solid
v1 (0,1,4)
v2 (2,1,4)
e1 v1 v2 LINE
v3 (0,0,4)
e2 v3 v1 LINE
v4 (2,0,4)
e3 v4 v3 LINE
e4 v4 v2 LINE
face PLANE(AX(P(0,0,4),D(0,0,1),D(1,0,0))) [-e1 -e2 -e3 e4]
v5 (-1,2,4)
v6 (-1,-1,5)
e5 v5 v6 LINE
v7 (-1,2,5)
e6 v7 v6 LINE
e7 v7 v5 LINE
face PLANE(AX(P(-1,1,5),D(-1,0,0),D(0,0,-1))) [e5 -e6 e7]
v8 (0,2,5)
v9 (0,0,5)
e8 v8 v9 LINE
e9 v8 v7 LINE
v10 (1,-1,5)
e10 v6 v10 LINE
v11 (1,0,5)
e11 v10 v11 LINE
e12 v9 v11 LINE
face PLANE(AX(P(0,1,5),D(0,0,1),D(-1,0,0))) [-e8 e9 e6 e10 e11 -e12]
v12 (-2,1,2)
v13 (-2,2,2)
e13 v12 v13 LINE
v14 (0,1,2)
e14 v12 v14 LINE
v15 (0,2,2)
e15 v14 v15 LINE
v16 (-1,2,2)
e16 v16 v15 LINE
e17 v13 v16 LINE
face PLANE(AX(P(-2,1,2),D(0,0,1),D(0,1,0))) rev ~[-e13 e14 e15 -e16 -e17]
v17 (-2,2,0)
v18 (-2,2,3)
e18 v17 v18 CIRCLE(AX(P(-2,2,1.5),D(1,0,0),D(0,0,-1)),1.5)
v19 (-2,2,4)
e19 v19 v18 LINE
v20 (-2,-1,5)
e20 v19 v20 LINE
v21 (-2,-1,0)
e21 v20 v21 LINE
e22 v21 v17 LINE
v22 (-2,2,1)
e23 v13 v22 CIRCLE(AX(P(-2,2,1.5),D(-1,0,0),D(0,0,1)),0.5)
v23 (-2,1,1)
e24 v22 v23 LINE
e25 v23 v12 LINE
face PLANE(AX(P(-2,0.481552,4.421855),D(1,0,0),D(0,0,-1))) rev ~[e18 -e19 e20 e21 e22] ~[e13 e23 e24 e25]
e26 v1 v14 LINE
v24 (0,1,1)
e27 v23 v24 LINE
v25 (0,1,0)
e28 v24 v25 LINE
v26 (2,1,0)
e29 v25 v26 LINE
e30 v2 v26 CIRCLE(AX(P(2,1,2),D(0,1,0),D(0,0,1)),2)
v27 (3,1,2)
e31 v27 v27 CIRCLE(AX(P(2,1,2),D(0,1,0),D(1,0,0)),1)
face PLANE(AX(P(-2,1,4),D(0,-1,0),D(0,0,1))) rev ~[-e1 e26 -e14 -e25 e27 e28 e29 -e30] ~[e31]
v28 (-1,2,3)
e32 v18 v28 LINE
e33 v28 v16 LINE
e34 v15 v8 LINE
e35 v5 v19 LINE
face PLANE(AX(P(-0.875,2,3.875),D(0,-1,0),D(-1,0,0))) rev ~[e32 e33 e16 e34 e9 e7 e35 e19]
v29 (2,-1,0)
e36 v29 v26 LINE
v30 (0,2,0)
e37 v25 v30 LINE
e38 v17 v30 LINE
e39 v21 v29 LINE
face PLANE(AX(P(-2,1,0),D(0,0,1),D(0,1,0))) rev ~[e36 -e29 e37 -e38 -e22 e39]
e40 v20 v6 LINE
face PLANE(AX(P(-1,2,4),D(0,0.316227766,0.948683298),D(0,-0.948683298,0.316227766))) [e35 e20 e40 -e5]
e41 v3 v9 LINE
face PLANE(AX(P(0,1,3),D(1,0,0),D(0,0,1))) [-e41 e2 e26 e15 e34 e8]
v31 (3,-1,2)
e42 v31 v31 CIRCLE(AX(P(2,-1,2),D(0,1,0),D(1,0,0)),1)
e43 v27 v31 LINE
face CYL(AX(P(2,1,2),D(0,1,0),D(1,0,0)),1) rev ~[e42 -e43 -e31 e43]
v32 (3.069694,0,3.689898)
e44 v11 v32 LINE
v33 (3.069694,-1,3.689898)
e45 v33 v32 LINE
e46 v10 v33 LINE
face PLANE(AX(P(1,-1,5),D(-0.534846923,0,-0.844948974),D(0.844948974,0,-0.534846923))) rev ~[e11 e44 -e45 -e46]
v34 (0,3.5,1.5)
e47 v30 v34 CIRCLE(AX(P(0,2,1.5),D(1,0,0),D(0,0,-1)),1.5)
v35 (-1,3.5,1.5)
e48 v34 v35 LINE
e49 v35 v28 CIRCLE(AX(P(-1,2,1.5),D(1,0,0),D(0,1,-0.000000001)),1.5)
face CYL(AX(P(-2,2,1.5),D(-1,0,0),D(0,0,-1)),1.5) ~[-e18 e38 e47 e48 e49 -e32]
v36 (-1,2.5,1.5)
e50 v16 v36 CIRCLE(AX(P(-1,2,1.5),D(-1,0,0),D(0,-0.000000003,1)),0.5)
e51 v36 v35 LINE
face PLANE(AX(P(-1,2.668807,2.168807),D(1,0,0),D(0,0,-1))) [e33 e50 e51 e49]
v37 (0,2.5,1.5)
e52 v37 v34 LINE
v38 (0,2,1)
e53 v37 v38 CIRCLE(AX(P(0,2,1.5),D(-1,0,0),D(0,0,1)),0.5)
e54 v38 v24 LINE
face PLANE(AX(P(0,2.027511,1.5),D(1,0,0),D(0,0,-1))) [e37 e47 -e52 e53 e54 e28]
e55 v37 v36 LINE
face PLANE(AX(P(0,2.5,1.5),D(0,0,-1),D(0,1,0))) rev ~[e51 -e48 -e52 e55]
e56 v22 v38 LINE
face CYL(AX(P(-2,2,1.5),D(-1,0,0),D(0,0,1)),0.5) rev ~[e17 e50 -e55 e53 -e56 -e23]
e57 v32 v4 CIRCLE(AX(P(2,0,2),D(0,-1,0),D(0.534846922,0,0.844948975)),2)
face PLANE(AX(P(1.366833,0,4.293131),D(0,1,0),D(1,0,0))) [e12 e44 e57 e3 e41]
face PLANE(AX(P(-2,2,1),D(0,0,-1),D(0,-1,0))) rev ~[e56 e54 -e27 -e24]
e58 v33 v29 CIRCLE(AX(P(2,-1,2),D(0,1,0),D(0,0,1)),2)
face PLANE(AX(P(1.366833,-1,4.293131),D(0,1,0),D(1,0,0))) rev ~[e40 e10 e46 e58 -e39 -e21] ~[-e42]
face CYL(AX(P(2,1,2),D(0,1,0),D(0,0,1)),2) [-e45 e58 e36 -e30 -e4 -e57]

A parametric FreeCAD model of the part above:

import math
import FreeCAD as App
import Part
import Sketcher
Q = App.Units.Quantity


def add_polygon(sketch, points):
    """Adds a closed chain of lines whose ends are joined by coincident constraints."""
    first, n = sketch.GeometryCount, len(points)
    for a, b in zip(points, points[1:] + points[:1]):
        sketch.addGeometry(Part.LineSegment(App.Vector(*a, 0), App.Vector(*b, 0)), False)
    for i in range(n):
        sketch.addConstraint(Sketcher.Constraint("Coincident", first + i, 2, first + (i + 1) % n, 1))

doc = App.newDocument("Part")
body = doc.addObject("PartDesign::Body", "Body")

# Sketch on XY plane
sketch1 = doc.addObject("Sketcher::SketchObject", "Sketch")
body.addObject(sketch1)
sketch1.AttachmentSupport = (doc.XY_Plane, [""])
sketch1.MapMode = "FlatFace"
add_polygon(sketch1, [(-2, 1), (-2, -1), (2, -1), (2, 1)])  # lines 0-3
sketch1.addConstraint([
    Sketcher.Constraint("Vertical", 0),
    Sketcher.Constraint("Horizontal", 1),
    Sketcher.Constraint("Vertical", 2),
    Sketcher.Constraint("Horizontal", 3),
    Sketcher.Constraint("Symmetric", 0, 2, 2, 2, -1, 1),
    Sketcher.Constraint("DistanceX", 1, 1, 1, 2, Q("4 mm")),
    Sketcher.Constraint("DistanceY", 0, 2, 0, 1, Q("2 mm")),
])
pad1 = doc.addObject("PartDesign::Pad", "Pad")
body.addObject(pad1)
pad1.Profile = sketch1
pad1.Length = 4

# Sketch on XZ plane
sketch2 = doc.addObject("Sketcher::SketchObject", "Sketch001")
body.addObject(sketch2)
sketch2.AttachmentSupport = (doc.XZ_Plane, [""])
sketch2.MapMode = "FlatFace"
sketch2.AttachmentOffset = App.Placement(App.Vector(0, 0, -1), App.Rotation())
sketch2.addGeometry([
    Part.LineSegment(App.Vector(2, 0, 0), App.Vector(2, 4, 0)),
    Part.ArcOfCircle(Part.Circle(App.Vector(2, 2, 0), App.Vector(0, 0, 1), 2), math.radians(-90), math.radians(90)),
], False)
sketch2.addConstraint([
    Sketcher.Constraint("Coincident", 0, 1, 1, 1),
    Sketcher.Constraint("Coincident", 1, 2, 0, 2),
    Sketcher.Constraint("Vertical", 0),
    Sketcher.Constraint("PointOnObject", 0, 1, -1),
    Sketcher.Constraint("Vertical", 1, 3, 0, 1),
    Sketcher.Constraint("Radius", 1, Q("2 mm")),
    Sketcher.Constraint("DistanceX", -1, 1, 1, 3, Q("2 mm")),
])
pad2 = doc.addObject("PartDesign::Pad", "Pad001")
body.addObject(pad2)
pad2.Profile = sketch2
pad2.Length = 2

# Sketch on XZ plane
sketch3 = doc.addObject("Sketcher::SketchObject", "Sketch002")
body.addObject(sketch3)
sketch3.AttachmentSupport = (doc.XZ_Plane, [""])
sketch3.MapMode = "FlatFace"
sketch3.AttachmentOffset = App.Placement(App.Vector(0, 0, -1), App.Rotation())
sketch3.addGeometry(Part.Circle(App.Vector(2, 2, 0), App.Vector(0, 0, 1), 1), False)
sketch3.addConstraint([
    Sketcher.Constraint("Diameter", 0, Q("2 mm")),
    Sketcher.Constraint("DistanceX", -1, 1, 0, 3, Q("2 mm")),
    Sketcher.Constraint("DistanceY", -1, 1, 0, 3, Q("2 mm")),
])
pocket1 = doc.addObject("PartDesign::Pocket", "Pocket")
body.addObject(pocket1)
pocket1.Profile = sketch3
pocket1.Type = "ThroughAll"
pocket1.Reversed = True

# Sketch on YZ plane
sketch4 = doc.addObject("Sketcher::SketchObject", "Sketch003")
body.addObject(sketch4)
sketch4.AttachmentSupport = (doc.YZ_Plane, [""])
sketch4.MapMode = "FlatFace"
sketch4.AttachmentOffset = App.Placement(App.Vector(0, 0, -2), App.Rotation())
sketch4.addGeometry([
    Part.LineSegment(App.Vector(2, 0, 0), App.Vector(1, 0, 0)),  # 0
    Part.LineSegment(App.Vector(1, 0, 0), App.Vector(1, 1, 0)),  # 1
    Part.LineSegment(App.Vector(1, 1, 0), App.Vector(2, 1, 0)),  # 2
    Part.ArcOfCircle(Part.Circle(App.Vector(2, 1.5, 0), App.Vector(0, 0, 1), 0.5), math.radians(-90), math.radians(90)),  # 3
    Part.LineSegment(App.Vector(2, 2, 0), App.Vector(1, 2, 0)),  # 4
    Part.LineSegment(App.Vector(1, 2, 0), App.Vector(1, 3, 0)),  # 5
    Part.LineSegment(App.Vector(1, 3, 0), App.Vector(2, 3, 0)),  # 6
    Part.ArcOfCircle(Part.Circle(App.Vector(2, 1.5, 0), App.Vector(0, 0, 1), 1.5), math.radians(-90), math.radians(90)),  # 7
], False)
sketch4.addConstraint([
    Sketcher.Constraint("Coincident", 0, 2, 1, 1),
    Sketcher.Constraint("Coincident", 1, 2, 2, 1),
    Sketcher.Constraint("Tangent", 2, 2, 3, 1),
    Sketcher.Constraint("Tangent", 3, 2, 4, 1),
    Sketcher.Constraint("Coincident", 4, 2, 5, 1),
    Sketcher.Constraint("Coincident", 5, 2, 6, 1),
    Sketcher.Constraint("Tangent", 6, 2, 7, 2),
    Sketcher.Constraint("Tangent", 7, 1, 0, 1),
    Sketcher.Constraint("Horizontal", 0),
    Sketcher.Constraint("Vertical", 1),
    Sketcher.Constraint("Horizontal", 2),
    Sketcher.Constraint("Horizontal", 4),
    Sketcher.Constraint("Vertical", 5),
    Sketcher.Constraint("Horizontal", 6),
    Sketcher.Constraint("Coincident", 7, 3, 3, 3),
    Sketcher.Constraint("PointOnObject", 0, 2, -1),
    Sketcher.Constraint("Vertical", 1, 2, 4, 2),
    Sketcher.Constraint("Equal", 6, 1),
    Sketcher.Constraint("Radius", 3, Q("0.5 mm")),
    Sketcher.Constraint("Radius", 7, Q("1.5 mm")),
    Sketcher.Constraint("DistanceX", -1, 1, 3, 3, Q("2 mm")),
])
pad3 = doc.addObject("PartDesign::Pad", "Pad002")
body.addObject(pad3)
pad3.Profile = sketch4
pad3.Length = 2

# Sketch on YZ plane
sketch5 = doc.addObject("Sketcher::SketchObject", "Sketch004")
body.addObject(sketch5)
sketch5.AttachmentSupport = (doc.YZ_Plane, [""])
sketch5.MapMode = "FlatFace"
sketch5.addGeometry([
    Part.LineSegment(App.Vector(2.5, 1.5, 0), App.Vector(3.5, 1.5, 0)),
    Part.ArcOfCircle(Part.Circle(App.Vector(2, 1.5, 0), App.Vector(0, 0, 1), 1.5), math.radians(0), math.radians(90)),
    Part.LineSegment(App.Vector(2, 3, 0), App.Vector(2, 2, 0)),
    Part.ArcOfCircle(Part.Circle(App.Vector(2, 1.5, 0), App.Vector(0, 0, 1), 0.5), math.radians(0), math.radians(90)),
], False)
sketch5.addConstraint([
    Sketcher.Constraint("Coincident", 0, 2, 1, 1),
    Sketcher.Constraint("Coincident", 1, 2, 2, 1),
    Sketcher.Constraint("Coincident", 2, 2, 3, 2),
    Sketcher.Constraint("Coincident", 3, 1, 0, 1),
    Sketcher.Constraint("Horizontal", 0),
    Sketcher.Constraint("Vertical", 2),
    Sketcher.Constraint("Coincident", 3, 3, 1, 3),
    Sketcher.Constraint("Horizontal", 3, 3, 0, 2),
    Sketcher.Constraint("Vertical", 3, 3, 1, 2),
    Sketcher.Constraint("Radius", 1, Q("1.5 mm")),
    Sketcher.Constraint("Radius", 3, Q("0.5 mm")),
    Sketcher.Constraint("DistanceX", -1, 1, 1, 3, Q("2 mm")),
    Sketcher.Constraint("DistanceY", -1, 1, 1, 2, Q("3 mm")),
])
pocket2 = doc.addObject("PartDesign::Pocket", "Pocket001")
body.addObject(pocket2)
pocket2.Profile = sketch5
pocket2.Length = 1

# Sketch on YZ plane
sketch6 = doc.addObject("Sketcher::SketchObject", "Sketch005")
body.addObject(sketch6)
sketch6.AttachmentSupport = (doc.YZ_Plane, [""])
sketch6.MapMode = "FlatFace"
sketch6.AttachmentOffset = App.Placement(App.Vector(0, 0, -2), App.Rotation())
add_polygon(sketch6, [(1, 4), (-1, 4), (-1, 5), (1, 5)])  # lines 0-3
sketch6.addConstraint([
    Sketcher.Constraint("Horizontal", 0),
    Sketcher.Constraint("Vertical", 1),
    Sketcher.Constraint("Horizontal", 2),
    Sketcher.Constraint("Vertical", 3),
    Sketcher.Constraint("DistanceX", 0, 2, 0, 1, Q("2 mm")),
    Sketcher.Constraint("DistanceY", 1, 1, 1, 2, Q("1 mm")),
    Sketcher.Constraint("DistanceX", 0, 2, -1, 1, Q("1 mm")),
    Sketcher.Constraint("DistanceY", -1, 1, 0, 2, Q("4 mm")),
])
pad4 = doc.addObject("PartDesign::Pad", "Pad003")
body.addObject(pad4)
pad4.Profile = sketch6
pad4.Length = 2

# Sketch on YZ plane
sketch7 = doc.addObject("Sketcher::SketchObject", "Sketch006")
body.addObject(sketch7)
sketch7.AttachmentSupport = (doc.YZ_Plane, [""])
sketch7.MapMode = "FlatFace"
sketch7.AttachmentOffset = App.Placement(App.Vector(0, 0, -2), App.Rotation())
add_polygon(sketch7, [(1, 5), (1, 4), (-1, 5)])  # lines 0-2
sketch7.addConstraint([
    Sketcher.Constraint("Vertical", 0),
    Sketcher.Constraint("Horizontal", 2),
    Sketcher.Constraint("DistanceX", 2, 1, 2, 2, Q("2 mm")),
    Sketcher.Constraint("DistanceY", 0, 2, 0, 1, Q("1 mm")),
    Sketcher.Constraint("DistanceX", -1, 1, 0, 2, Q("1 mm")),
    Sketcher.Constraint("DistanceY", -1, 1, 0, 2, Q("4 mm")),
])
pocket3 = doc.addObject("PartDesign::Pocket", "Pocket002")
body.addObject(pocket3)
pocket3.Profile = sketch7
pocket3.Length = 1
pocket3.Reversed = True

# Sketch on XZ plane
sketch8 = doc.addObject("Sketcher::SketchObject", "Sketch007")
body.addObject(sketch8)
sketch8.AttachmentSupport = (doc.XZ_Plane, [""])
sketch8.MapMode = "FlatFace"
sketch8.AttachmentOffset = App.Placement(App.Vector(0, 0, 1), App.Rotation())
sketch8.addGeometry([
    Part.LineSegment(App.Vector(1, 5, 0), App.Vector(0, 5, 0)),  # 0
    Part.LineSegment(App.Vector(0, 5, 0), App.Vector(0, 4, 0)),  # 1
    Part.LineSegment(App.Vector(0, 4, 0), App.Vector(2, 4, 0)),  # 2
    Part.ArcOfCircle(Part.Circle(App.Vector(2, 2, 0), App.Vector(0, 0, 1), 2), math.radians(57.666469), math.radians(90)),  # 3
    Part.LineSegment(App.Vector(3.069694, 3.689898, 0), App.Vector(1, 5, 0)),  # 4
], False)
sketch8.addConstraint([
    Sketcher.Constraint("Coincident", 0, 2, 1, 1),
    Sketcher.Constraint("Coincident", 1, 2, 2, 1),
    Sketcher.Constraint("Tangent", 2, 2, 3, 2),
    Sketcher.Constraint("Tangent", 3, 1, 4, 1),
    Sketcher.Constraint("Coincident", 4, 2, 0, 1),
    Sketcher.Constraint("Horizontal", 0),
    Sketcher.Constraint("Vertical", 1),
    Sketcher.Constraint("Horizontal", 2),
    Sketcher.Constraint("PointOnObject", 0, 2, -2),
    Sketcher.Constraint("Equal", 0, 1),
    Sketcher.Constraint("Radius", 3, Q("2 mm")),
    Sketcher.Constraint("DistanceX", 0, 2, 0, 1, Q("1 mm")),
    Sketcher.Constraint("DistanceX", 2, 1, 2, 2, Q("2 mm")),
    Sketcher.Constraint("DistanceY", -1, 1, 3, 3, Q("2 mm")),
])
pad5 = doc.addObject("PartDesign::Pad", "Pad004")
body.addObject(pad5)
pad5.Profile = sketch8
pad5.Length = 1
pad5.Reversed = True

# Sketch on XZ plane
sketch9 = doc.addObject("Sketcher::SketchObject", "Sketch008")
body.addObject(sketch9)
sketch9.AttachmentSupport = (doc.XZ_Plane, [""])
sketch9.MapMode = "FlatFace"
sketch9.AttachmentOffset = App.Placement(App.Vector(0, 0, -1), App.Rotation())
add_polygon(sketch9, [(0, 5), (0, 3), (-2, 3), (-2, 4), (-1, 4), (-1, 5)])  # lines 0-5
sketch9.addConstraint([
    Sketcher.Constraint("Vertical", 0),
    Sketcher.Constraint("Horizontal", 1),
    Sketcher.Constraint("Vertical", 2),
    Sketcher.Constraint("Horizontal", 3),
    Sketcher.Constraint("Vertical", 4),
    Sketcher.Constraint("Horizontal", 5),
    Sketcher.Constraint("PointOnObject", 0, 2, -2),
    Sketcher.Constraint("Equal", 3, 5),
    Sketcher.Constraint("Equal", 1, 0),
    Sketcher.Constraint("Equal", 5, 2),
    Sketcher.Constraint("DistanceX", 1, 2, 1, 1, Q("2 mm")),
    Sketcher.Constraint("DistanceY", -1, 1, 0, 2, Q("3 mm")),
])
pad6 = doc.addObject("PartDesign::Pad", "Pad005")
body.addObject(pad6)
pad6.Profile = sketch9
pad6.Length = 1
pad6.Reversed = True

# Sketch on YZ plane
sketch10 = doc.addObject("Sketcher::SketchObject", "Sketch009")
body.addObject(sketch10)
sketch10.AttachmentSupport = (doc.YZ_Plane, [""])
sketch10.MapMode = "FlatFace"
sketch10.AttachmentOffset = App.Placement(App.Vector(0, 0, -1), App.Rotation())
add_polygon(sketch10, [(-1, 5), (2, 4), (1, 4)])  # lines 0-2
sketch10.addConstraint([
    Sketcher.Constraint("Horizontal", 1),
    Sketcher.Constraint("DistanceX", 1, 2, 1, 1, Q("1 mm")),
    Sketcher.Constraint("DistanceX", -1, 1, 0, 2, Q("2 mm")),
    Sketcher.Constraint("DistanceY", -1, 1, 0, 2, Q("4 mm")),
    Sketcher.Constraint("DistanceX", 2, 2, -1, 1, Q("1 mm")),
    Sketcher.Constraint("DistanceY", -1, 1, 2, 2, Q("5 mm")),
])
pad7 = doc.addObject("PartDesign::Pad", "Pad006")
body.addObject(pad7)
pad7.Profile = sketch10
pad7.Length = 1
pad7.Reversed = True

doc.recompute()
